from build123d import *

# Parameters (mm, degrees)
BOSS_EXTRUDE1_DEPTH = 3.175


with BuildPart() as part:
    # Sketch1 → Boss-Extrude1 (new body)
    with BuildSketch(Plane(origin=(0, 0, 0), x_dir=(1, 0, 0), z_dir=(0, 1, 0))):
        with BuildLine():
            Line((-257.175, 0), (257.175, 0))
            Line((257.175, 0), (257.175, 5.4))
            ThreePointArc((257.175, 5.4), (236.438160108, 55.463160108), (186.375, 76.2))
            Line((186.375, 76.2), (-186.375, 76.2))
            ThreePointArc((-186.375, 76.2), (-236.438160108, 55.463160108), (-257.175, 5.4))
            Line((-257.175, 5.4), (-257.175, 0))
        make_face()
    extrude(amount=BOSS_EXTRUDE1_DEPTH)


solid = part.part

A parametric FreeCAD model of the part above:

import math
import FreeCAD as App
import Part
import Sketcher

doc = App.newDocument("Part")
body = doc.addObject("PartDesign::Body", "Body")

sketch1 = body.newObject("Sketcher::SketchObject", "Sketch")
sketch1.AttachmentSupport = (doc.getObject("XZ_Plane"), [""])
sketch1.MapMode = "FlatFace"
sketch1.addGeometry([
    Part.LineSegment(App.Vector(-257.175, 0, 0), App.Vector(257.175, 0, 0)),
    Part.LineSegment(App.Vector(257.175, 0, 0), App.Vector(257.175, -5.4, 0)),
    Part.ArcOfCircle(Part.Circle(App.Vector(186.375, -5.4, 0), App.Vector(0, 0, 1), 70.8), math.radians(-90), math.radians(0)),
    Part.LineSegment(App.Vector(186.375, -76.2, 0), App.Vector(-186.375, -76.2, 0)),
    Part.ArcOfCircle(Part.Circle(App.Vector(-186.375, -5.4, 0), App.Vector(0, 0, 1), 70.8), math.radians(180), math.radians(270)),
    Part.LineSegment(App.Vector(-257.175, -5.4, 0), App.Vector(-257.175, 0, 0)),
], False)
sketch1.addConstraint([
    Sketcher.Constraint("Coincident", 0, 2, 1, 1),
    Sketcher.Constraint("Tangent", 1, 2, 2, 2),
    Sketcher.Constraint("Tangent", 2, 1, 3, 1),
    Sketcher.Constraint("Tangent", 3, 2, 4, 2),
    Sketcher.Constraint("Tangent", 4, 1, 5, 1),
    Sketcher.Constraint("Coincident", 5, 2, 0, 1),
    Sketcher.Constraint("Horizontal", 0),
    Sketcher.Constraint("Vertical", 1),
    Sketcher.Constraint("Horizontal", 3),
    Sketcher.Constraint("Vertical", 5),
    Sketcher.Constraint("Equal", 2, 4),
    Sketcher.Constraint("Symmetric", 0, 2, 5, 2, -1, 1),
    Sketcher.Constraint("Radius", 2, 70.8),
    Sketcher.Constraint("DistanceY", 1, 2, 1, 1, 5.4),
    Sketcher.Constraint("DistanceX", 0, 1, 0, 2, 514.35),
])
pad1 = body.newObject("PartDesign::Pad", "Pad")
pad1.Profile = sketch1
pad1.Length = 3.175
pad1.Reversed = True

doc.recompute()
